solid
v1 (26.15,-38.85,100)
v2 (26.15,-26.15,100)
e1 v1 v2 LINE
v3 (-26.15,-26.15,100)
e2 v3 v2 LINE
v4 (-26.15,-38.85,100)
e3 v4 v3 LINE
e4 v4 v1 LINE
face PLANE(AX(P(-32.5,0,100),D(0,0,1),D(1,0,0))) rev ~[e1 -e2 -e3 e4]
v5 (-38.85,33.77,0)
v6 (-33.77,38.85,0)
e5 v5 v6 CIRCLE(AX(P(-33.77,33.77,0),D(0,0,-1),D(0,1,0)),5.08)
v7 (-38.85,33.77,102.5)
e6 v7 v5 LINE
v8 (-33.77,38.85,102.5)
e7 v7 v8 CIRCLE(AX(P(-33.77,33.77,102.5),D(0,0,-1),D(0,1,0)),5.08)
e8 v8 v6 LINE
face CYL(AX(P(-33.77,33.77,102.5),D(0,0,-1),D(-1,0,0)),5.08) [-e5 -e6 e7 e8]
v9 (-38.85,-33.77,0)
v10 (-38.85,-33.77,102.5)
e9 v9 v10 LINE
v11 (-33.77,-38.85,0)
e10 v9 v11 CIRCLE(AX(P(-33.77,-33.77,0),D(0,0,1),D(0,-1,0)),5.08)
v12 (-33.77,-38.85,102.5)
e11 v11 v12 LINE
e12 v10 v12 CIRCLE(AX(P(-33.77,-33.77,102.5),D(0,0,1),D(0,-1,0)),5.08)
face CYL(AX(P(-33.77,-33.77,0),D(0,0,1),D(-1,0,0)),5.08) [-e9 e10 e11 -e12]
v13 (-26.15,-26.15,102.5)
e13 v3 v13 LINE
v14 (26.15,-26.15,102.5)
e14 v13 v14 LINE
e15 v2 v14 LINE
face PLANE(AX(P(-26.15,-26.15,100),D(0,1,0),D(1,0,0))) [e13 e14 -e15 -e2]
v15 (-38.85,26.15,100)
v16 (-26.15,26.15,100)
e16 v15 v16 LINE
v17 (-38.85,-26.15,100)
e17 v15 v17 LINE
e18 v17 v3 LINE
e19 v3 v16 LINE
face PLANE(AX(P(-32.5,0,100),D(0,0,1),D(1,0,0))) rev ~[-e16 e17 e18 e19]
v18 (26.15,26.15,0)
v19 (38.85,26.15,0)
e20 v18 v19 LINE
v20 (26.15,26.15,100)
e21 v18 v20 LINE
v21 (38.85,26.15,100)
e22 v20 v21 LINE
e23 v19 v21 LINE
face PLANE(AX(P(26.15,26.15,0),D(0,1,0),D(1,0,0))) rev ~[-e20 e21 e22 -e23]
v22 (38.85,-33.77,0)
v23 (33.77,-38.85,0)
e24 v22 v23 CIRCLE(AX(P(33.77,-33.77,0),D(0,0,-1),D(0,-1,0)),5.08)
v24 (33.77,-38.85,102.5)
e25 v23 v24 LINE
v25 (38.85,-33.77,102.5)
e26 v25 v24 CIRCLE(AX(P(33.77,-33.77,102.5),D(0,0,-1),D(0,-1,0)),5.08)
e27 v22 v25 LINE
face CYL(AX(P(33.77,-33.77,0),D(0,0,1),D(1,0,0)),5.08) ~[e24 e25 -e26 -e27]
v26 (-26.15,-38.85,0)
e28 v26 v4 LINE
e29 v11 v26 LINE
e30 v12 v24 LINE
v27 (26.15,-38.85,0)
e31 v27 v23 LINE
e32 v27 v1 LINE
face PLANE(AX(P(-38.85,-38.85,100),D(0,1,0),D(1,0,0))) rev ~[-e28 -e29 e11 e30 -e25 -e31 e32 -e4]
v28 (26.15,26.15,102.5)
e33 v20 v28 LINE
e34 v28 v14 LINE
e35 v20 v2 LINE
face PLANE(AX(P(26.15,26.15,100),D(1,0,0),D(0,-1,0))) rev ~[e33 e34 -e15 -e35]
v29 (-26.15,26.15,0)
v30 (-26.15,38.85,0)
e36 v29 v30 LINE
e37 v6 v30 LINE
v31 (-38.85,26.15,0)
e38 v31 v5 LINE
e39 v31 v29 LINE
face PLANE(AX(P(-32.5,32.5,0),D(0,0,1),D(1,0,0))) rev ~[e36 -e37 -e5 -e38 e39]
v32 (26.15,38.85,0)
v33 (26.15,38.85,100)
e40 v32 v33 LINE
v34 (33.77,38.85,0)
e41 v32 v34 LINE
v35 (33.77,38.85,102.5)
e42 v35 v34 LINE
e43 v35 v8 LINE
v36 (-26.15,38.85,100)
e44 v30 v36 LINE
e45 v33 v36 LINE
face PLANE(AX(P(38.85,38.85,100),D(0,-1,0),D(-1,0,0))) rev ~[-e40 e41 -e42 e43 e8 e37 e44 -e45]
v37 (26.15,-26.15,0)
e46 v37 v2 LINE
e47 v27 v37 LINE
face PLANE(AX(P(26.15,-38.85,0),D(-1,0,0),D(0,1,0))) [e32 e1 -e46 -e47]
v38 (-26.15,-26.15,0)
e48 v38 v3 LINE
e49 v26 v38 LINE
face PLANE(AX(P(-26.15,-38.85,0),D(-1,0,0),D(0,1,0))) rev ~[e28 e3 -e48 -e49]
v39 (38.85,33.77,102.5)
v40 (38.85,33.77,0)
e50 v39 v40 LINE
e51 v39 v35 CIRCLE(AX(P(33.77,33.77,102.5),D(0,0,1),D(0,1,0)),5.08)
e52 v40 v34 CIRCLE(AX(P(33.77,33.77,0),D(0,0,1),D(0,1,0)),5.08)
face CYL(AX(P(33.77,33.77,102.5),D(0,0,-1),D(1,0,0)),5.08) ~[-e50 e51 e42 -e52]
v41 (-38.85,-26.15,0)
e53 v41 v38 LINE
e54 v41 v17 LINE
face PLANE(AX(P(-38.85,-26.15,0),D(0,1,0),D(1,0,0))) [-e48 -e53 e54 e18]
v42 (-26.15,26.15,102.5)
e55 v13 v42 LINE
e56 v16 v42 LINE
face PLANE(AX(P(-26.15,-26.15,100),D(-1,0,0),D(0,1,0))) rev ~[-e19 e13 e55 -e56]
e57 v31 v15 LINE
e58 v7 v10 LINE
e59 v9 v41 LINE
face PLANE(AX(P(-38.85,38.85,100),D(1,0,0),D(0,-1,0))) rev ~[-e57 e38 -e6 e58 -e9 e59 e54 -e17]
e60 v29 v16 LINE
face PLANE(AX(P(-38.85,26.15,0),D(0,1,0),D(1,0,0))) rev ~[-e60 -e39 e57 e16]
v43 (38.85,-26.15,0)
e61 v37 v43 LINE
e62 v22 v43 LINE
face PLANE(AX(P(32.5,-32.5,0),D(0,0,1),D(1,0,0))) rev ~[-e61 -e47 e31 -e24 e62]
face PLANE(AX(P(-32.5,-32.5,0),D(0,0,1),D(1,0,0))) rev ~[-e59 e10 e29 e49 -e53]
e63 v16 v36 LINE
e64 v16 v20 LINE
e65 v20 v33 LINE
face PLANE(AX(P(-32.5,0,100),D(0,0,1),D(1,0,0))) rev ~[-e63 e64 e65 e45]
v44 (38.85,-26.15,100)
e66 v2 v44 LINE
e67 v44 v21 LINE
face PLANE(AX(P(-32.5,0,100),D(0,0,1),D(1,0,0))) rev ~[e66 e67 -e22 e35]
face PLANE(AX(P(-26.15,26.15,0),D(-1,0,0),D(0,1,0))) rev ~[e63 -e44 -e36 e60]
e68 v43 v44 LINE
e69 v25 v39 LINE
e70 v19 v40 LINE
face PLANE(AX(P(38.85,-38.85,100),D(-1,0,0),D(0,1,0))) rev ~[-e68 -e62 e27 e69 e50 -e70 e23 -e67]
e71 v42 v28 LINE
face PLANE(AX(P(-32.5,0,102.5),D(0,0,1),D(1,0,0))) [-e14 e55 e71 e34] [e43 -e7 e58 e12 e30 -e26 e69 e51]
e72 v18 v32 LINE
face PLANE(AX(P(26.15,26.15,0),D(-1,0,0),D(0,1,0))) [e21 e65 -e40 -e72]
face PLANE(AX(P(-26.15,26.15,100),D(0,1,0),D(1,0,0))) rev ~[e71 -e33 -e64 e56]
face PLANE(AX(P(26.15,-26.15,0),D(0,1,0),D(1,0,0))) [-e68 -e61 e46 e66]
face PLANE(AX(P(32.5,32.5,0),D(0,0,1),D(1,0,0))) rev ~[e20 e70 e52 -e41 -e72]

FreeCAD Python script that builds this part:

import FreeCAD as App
import Part
import Sketcher

V = App.Vector


def edges_at(feature, points):
    """Names of the edges that pass closest to the given points."""
    edges = feature.Shape.Edges
    near = lambda p: min(range(len(edges)), key=lambda i: edges[i].distToShape(Part.Vertex(*p))[0])
    return sorted({f"Edge{near(p) + 1}" for p in points})


def add_polygon(sketch, points):
    """Adds a closed chain of lines whose ends are joined by coincident constraints."""
    first, n = sketch.GeometryCount, len(points)
    for a, b in zip(points, points[1:] + points[:1]):
        sketch.addGeometry(Part.LineSegment(App.Vector(*a, 0), App.Vector(*b, 0)), False)
    for i in range(n):
        sketch.addConstraint(Sketcher.Constraint("Coincident", first + i, 2, first + (i + 1) % n, 1))

doc = App.newDocument("Part")
body = doc.addObject("PartDesign::Body", "Body")

sketch1 = body.newObject("Sketcher::SketchObject", "Sketch")
sketch1.AttachmentSupport = (doc.getObject("XY_Plane"), [""])
sketch1.MapMode = "FlatFace"
add_polygon(sketch1, [(-38.85, 38.85), (-38.85, 26.15), (-26.15, 26.15), (-26.15, 38.85)])
sketch1.addConstraint([
    Sketcher.Constraint("Vertical", 0),
    Sketcher.Constraint("Horizontal", 1),
    Sketcher.Constraint("Vertical", 2),
    Sketcher.Constraint("Horizontal", 3),
    Sketcher.Constraint("Equal", 3, 0),
    Sketcher.Constraint("DistanceX", 1, 1, 1, 2, 12.7),
    Sketcher.Constraint("DistanceX", 0, 2, -1, 1, 38.85),
    Sketcher.Constraint("DistanceY", -1, 1, 0, 2, 26.15),
])
pad1 = body.newObject("PartDesign::Pad", "Pad")
pad1.Profile = sketch1
pad1.Length = 100
body2 = doc.addObject("PartDesign::Body", "Body001")

sketch2 = body2.newObject("Sketcher::SketchObject", "Sketch001")
sketch2.AttachmentSupport = (doc.getObject("XY_Plane001"), [""])
sketch2.MapMode = "FlatFace"
add_polygon(sketch2, [(26.15, 38.85), (26.15, 26.15), (38.85, 26.15), (38.85, 38.85)])
sketch2.addConstraint([
    Sketcher.Constraint("Vertical", 0),
    Sketcher.Constraint("Horizontal", 1),
    Sketcher.Constraint("Vertical", 2),
    Sketcher.Constraint("Horizontal", 3),
    Sketcher.Constraint("Equal", 3, 0),
    Sketcher.Constraint("DistanceX", 1, 1, 1, 2, 12.7),
    Sketcher.Constraint("DistanceX", -1, 1, 0, 2, 26.15),
    Sketcher.Constraint("DistanceY", -1, 1, 0, 2, 26.15),
])
pad2 = body2.newObject("PartDesign::Pad", "Pad001")
pad2.Profile = sketch2
pad2.Length = 100
body3 = doc.addObject("PartDesign::Body", "Body002")

sketch3 = body3.newObject("Sketcher::SketchObject", "Sketch002")
sketch3.AttachmentSupport = (doc.getObject("XY_Plane002"), [""])
sketch3.MapMode = "FlatFace"
add_polygon(sketch3, [(26.15, -26.15), (26.15, -38.85), (38.85, -38.85), (38.85, -26.15)])
sketch3.addConstraint([
    Sketcher.Constraint("Vertical", 0),
    Sketcher.Constraint("Horizontal", 1),
    Sketcher.Constraint("Vertical", 2),
    Sketcher.Constraint("Horizontal", 3),
    Sketcher.Constraint("Equal", 3, 0),
    Sketcher.Constraint("DistanceX", 1, 1, 1, 2, 12.7),
    Sketcher.Constraint("DistanceX", -1, 1, 0, 2, 26.15),
    Sketcher.Constraint("DistanceY", 0, 2, -1, 1, 38.85),
])
pad3 = body3.newObject("PartDesign::Pad", "Pad002")
pad3.Profile = sketch3
pad3.Length = 100
body4 = doc.addObject("PartDesign::Body", "Body003")

sketch4 = body4.newObject("Sketcher::SketchObject", "Sketch003")
sketch4.AttachmentSupport = (doc.getObject("XY_Plane003"), [""])
sketch4.MapMode = "FlatFace"
add_polygon(sketch4, [(-38.85, -26.15), (-38.85, -38.85), (-26.15, -38.85), (-26.15, -26.15)])
sketch4.addConstraint([
    Sketcher.Constraint("Vertical", 0),
    Sketcher.Constraint("Horizontal", 1),
    Sketcher.Constraint("Vertical", 2),
    Sketcher.Constraint("Horizontal", 3),
    Sketcher.Constraint("Equal", 3, 0),
    Sketcher.Constraint("DistanceX", 1, 1, 1, 2, 12.7),
    Sketcher.Constraint("DistanceX", 0, 2, -1, 1, 38.85),
    Sketcher.Constraint("DistanceY", 0, 2, -1, 1, 38.85),
])
pad4 = body4.newObject("PartDesign::Pad", "Pad003")
pad4.Profile = sketch4
pad4.Length = 100
body.AllowCompound = True
doc.recompute()

boolean = body.newObject("PartDesign::Boolean", "Boolean")
boolean.Type = "Fuse"
boolean.addObjects([body2])
doc.recompute()

boolean2 = body.newObject("PartDesign::Boolean", "Boolean001")
boolean2.Type = "Fuse"
boolean2.addObjects([body3])
doc.recompute()

boolean3 = body.newObject("PartDesign::Boolean", "Boolean002")
boolean3.Type = "Fuse"
boolean3.addObjects([body4])

sketch5 = body.newObject("Sketcher::SketchObject", "Sketch004")
sketch5.AttachmentSupport = (doc.getObject("XY_Plane"), [""])
sketch5.MapMode = "FlatFace"
sketch5.AttachmentOffset = App.Placement(V(0, 0, 100), App.Rotation())
add_polygon(sketch5, [(-38.85, 38.85), (-38.85, -38.85), (38.85, -38.85), (38.85, 38.85)])
add_polygon(sketch5, [(26.15, -26.15), (-26.15, -26.15), (-26.15, 26.15), (26.15, 26.15)])
sketch5.addConstraint([
    Sketcher.Constraint("Vertical", 0),
    Sketcher.Constraint("Horizontal", 1),
    Sketcher.Constraint("Vertical", 2),
    Sketcher.Constraint("Horizontal", 3),
    Sketcher.Constraint("Horizontal", 4),
    Sketcher.Constraint("Vertical", 5),
    Sketcher.Constraint("Horizontal", 6),
    Sketcher.Constraint("Vertical", 7),
    Sketcher.Constraint("Symmetric", 0, 2, 2, 2, -1, 1),
    Sketcher.Constraint("Symmetric", 4, 2, 6, 2, -1, 1),
    Sketcher.Constraint("Equal", 3, 0),
    Sketcher.Constraint("Equal", 6, 5),
    Sketcher.Constraint("DistanceX", 1, 1, 1, 2, 77.7),
    Sketcher.Constraint("DistanceX", 4, 2, 4, 1, 52.3),
])
pad5 = body.newObject("PartDesign::Pad", "Pad004")
pad5.Profile = sketch5
pad5.Length = 2.5
doc.recompute()

fillet = body.newObject("PartDesign::Fillet", "Fillet")
fillet.Base = (pad5, edges_at(pad5, [
    (38.85, -38.85, 51.25),
    (38.85, 38.85, 51.25),
    (-38.85, 38.85, 51.25),
    (-38.85, -38.85, 51.25),
]))
fillet.Radius = 5.08

doc.recompute()
